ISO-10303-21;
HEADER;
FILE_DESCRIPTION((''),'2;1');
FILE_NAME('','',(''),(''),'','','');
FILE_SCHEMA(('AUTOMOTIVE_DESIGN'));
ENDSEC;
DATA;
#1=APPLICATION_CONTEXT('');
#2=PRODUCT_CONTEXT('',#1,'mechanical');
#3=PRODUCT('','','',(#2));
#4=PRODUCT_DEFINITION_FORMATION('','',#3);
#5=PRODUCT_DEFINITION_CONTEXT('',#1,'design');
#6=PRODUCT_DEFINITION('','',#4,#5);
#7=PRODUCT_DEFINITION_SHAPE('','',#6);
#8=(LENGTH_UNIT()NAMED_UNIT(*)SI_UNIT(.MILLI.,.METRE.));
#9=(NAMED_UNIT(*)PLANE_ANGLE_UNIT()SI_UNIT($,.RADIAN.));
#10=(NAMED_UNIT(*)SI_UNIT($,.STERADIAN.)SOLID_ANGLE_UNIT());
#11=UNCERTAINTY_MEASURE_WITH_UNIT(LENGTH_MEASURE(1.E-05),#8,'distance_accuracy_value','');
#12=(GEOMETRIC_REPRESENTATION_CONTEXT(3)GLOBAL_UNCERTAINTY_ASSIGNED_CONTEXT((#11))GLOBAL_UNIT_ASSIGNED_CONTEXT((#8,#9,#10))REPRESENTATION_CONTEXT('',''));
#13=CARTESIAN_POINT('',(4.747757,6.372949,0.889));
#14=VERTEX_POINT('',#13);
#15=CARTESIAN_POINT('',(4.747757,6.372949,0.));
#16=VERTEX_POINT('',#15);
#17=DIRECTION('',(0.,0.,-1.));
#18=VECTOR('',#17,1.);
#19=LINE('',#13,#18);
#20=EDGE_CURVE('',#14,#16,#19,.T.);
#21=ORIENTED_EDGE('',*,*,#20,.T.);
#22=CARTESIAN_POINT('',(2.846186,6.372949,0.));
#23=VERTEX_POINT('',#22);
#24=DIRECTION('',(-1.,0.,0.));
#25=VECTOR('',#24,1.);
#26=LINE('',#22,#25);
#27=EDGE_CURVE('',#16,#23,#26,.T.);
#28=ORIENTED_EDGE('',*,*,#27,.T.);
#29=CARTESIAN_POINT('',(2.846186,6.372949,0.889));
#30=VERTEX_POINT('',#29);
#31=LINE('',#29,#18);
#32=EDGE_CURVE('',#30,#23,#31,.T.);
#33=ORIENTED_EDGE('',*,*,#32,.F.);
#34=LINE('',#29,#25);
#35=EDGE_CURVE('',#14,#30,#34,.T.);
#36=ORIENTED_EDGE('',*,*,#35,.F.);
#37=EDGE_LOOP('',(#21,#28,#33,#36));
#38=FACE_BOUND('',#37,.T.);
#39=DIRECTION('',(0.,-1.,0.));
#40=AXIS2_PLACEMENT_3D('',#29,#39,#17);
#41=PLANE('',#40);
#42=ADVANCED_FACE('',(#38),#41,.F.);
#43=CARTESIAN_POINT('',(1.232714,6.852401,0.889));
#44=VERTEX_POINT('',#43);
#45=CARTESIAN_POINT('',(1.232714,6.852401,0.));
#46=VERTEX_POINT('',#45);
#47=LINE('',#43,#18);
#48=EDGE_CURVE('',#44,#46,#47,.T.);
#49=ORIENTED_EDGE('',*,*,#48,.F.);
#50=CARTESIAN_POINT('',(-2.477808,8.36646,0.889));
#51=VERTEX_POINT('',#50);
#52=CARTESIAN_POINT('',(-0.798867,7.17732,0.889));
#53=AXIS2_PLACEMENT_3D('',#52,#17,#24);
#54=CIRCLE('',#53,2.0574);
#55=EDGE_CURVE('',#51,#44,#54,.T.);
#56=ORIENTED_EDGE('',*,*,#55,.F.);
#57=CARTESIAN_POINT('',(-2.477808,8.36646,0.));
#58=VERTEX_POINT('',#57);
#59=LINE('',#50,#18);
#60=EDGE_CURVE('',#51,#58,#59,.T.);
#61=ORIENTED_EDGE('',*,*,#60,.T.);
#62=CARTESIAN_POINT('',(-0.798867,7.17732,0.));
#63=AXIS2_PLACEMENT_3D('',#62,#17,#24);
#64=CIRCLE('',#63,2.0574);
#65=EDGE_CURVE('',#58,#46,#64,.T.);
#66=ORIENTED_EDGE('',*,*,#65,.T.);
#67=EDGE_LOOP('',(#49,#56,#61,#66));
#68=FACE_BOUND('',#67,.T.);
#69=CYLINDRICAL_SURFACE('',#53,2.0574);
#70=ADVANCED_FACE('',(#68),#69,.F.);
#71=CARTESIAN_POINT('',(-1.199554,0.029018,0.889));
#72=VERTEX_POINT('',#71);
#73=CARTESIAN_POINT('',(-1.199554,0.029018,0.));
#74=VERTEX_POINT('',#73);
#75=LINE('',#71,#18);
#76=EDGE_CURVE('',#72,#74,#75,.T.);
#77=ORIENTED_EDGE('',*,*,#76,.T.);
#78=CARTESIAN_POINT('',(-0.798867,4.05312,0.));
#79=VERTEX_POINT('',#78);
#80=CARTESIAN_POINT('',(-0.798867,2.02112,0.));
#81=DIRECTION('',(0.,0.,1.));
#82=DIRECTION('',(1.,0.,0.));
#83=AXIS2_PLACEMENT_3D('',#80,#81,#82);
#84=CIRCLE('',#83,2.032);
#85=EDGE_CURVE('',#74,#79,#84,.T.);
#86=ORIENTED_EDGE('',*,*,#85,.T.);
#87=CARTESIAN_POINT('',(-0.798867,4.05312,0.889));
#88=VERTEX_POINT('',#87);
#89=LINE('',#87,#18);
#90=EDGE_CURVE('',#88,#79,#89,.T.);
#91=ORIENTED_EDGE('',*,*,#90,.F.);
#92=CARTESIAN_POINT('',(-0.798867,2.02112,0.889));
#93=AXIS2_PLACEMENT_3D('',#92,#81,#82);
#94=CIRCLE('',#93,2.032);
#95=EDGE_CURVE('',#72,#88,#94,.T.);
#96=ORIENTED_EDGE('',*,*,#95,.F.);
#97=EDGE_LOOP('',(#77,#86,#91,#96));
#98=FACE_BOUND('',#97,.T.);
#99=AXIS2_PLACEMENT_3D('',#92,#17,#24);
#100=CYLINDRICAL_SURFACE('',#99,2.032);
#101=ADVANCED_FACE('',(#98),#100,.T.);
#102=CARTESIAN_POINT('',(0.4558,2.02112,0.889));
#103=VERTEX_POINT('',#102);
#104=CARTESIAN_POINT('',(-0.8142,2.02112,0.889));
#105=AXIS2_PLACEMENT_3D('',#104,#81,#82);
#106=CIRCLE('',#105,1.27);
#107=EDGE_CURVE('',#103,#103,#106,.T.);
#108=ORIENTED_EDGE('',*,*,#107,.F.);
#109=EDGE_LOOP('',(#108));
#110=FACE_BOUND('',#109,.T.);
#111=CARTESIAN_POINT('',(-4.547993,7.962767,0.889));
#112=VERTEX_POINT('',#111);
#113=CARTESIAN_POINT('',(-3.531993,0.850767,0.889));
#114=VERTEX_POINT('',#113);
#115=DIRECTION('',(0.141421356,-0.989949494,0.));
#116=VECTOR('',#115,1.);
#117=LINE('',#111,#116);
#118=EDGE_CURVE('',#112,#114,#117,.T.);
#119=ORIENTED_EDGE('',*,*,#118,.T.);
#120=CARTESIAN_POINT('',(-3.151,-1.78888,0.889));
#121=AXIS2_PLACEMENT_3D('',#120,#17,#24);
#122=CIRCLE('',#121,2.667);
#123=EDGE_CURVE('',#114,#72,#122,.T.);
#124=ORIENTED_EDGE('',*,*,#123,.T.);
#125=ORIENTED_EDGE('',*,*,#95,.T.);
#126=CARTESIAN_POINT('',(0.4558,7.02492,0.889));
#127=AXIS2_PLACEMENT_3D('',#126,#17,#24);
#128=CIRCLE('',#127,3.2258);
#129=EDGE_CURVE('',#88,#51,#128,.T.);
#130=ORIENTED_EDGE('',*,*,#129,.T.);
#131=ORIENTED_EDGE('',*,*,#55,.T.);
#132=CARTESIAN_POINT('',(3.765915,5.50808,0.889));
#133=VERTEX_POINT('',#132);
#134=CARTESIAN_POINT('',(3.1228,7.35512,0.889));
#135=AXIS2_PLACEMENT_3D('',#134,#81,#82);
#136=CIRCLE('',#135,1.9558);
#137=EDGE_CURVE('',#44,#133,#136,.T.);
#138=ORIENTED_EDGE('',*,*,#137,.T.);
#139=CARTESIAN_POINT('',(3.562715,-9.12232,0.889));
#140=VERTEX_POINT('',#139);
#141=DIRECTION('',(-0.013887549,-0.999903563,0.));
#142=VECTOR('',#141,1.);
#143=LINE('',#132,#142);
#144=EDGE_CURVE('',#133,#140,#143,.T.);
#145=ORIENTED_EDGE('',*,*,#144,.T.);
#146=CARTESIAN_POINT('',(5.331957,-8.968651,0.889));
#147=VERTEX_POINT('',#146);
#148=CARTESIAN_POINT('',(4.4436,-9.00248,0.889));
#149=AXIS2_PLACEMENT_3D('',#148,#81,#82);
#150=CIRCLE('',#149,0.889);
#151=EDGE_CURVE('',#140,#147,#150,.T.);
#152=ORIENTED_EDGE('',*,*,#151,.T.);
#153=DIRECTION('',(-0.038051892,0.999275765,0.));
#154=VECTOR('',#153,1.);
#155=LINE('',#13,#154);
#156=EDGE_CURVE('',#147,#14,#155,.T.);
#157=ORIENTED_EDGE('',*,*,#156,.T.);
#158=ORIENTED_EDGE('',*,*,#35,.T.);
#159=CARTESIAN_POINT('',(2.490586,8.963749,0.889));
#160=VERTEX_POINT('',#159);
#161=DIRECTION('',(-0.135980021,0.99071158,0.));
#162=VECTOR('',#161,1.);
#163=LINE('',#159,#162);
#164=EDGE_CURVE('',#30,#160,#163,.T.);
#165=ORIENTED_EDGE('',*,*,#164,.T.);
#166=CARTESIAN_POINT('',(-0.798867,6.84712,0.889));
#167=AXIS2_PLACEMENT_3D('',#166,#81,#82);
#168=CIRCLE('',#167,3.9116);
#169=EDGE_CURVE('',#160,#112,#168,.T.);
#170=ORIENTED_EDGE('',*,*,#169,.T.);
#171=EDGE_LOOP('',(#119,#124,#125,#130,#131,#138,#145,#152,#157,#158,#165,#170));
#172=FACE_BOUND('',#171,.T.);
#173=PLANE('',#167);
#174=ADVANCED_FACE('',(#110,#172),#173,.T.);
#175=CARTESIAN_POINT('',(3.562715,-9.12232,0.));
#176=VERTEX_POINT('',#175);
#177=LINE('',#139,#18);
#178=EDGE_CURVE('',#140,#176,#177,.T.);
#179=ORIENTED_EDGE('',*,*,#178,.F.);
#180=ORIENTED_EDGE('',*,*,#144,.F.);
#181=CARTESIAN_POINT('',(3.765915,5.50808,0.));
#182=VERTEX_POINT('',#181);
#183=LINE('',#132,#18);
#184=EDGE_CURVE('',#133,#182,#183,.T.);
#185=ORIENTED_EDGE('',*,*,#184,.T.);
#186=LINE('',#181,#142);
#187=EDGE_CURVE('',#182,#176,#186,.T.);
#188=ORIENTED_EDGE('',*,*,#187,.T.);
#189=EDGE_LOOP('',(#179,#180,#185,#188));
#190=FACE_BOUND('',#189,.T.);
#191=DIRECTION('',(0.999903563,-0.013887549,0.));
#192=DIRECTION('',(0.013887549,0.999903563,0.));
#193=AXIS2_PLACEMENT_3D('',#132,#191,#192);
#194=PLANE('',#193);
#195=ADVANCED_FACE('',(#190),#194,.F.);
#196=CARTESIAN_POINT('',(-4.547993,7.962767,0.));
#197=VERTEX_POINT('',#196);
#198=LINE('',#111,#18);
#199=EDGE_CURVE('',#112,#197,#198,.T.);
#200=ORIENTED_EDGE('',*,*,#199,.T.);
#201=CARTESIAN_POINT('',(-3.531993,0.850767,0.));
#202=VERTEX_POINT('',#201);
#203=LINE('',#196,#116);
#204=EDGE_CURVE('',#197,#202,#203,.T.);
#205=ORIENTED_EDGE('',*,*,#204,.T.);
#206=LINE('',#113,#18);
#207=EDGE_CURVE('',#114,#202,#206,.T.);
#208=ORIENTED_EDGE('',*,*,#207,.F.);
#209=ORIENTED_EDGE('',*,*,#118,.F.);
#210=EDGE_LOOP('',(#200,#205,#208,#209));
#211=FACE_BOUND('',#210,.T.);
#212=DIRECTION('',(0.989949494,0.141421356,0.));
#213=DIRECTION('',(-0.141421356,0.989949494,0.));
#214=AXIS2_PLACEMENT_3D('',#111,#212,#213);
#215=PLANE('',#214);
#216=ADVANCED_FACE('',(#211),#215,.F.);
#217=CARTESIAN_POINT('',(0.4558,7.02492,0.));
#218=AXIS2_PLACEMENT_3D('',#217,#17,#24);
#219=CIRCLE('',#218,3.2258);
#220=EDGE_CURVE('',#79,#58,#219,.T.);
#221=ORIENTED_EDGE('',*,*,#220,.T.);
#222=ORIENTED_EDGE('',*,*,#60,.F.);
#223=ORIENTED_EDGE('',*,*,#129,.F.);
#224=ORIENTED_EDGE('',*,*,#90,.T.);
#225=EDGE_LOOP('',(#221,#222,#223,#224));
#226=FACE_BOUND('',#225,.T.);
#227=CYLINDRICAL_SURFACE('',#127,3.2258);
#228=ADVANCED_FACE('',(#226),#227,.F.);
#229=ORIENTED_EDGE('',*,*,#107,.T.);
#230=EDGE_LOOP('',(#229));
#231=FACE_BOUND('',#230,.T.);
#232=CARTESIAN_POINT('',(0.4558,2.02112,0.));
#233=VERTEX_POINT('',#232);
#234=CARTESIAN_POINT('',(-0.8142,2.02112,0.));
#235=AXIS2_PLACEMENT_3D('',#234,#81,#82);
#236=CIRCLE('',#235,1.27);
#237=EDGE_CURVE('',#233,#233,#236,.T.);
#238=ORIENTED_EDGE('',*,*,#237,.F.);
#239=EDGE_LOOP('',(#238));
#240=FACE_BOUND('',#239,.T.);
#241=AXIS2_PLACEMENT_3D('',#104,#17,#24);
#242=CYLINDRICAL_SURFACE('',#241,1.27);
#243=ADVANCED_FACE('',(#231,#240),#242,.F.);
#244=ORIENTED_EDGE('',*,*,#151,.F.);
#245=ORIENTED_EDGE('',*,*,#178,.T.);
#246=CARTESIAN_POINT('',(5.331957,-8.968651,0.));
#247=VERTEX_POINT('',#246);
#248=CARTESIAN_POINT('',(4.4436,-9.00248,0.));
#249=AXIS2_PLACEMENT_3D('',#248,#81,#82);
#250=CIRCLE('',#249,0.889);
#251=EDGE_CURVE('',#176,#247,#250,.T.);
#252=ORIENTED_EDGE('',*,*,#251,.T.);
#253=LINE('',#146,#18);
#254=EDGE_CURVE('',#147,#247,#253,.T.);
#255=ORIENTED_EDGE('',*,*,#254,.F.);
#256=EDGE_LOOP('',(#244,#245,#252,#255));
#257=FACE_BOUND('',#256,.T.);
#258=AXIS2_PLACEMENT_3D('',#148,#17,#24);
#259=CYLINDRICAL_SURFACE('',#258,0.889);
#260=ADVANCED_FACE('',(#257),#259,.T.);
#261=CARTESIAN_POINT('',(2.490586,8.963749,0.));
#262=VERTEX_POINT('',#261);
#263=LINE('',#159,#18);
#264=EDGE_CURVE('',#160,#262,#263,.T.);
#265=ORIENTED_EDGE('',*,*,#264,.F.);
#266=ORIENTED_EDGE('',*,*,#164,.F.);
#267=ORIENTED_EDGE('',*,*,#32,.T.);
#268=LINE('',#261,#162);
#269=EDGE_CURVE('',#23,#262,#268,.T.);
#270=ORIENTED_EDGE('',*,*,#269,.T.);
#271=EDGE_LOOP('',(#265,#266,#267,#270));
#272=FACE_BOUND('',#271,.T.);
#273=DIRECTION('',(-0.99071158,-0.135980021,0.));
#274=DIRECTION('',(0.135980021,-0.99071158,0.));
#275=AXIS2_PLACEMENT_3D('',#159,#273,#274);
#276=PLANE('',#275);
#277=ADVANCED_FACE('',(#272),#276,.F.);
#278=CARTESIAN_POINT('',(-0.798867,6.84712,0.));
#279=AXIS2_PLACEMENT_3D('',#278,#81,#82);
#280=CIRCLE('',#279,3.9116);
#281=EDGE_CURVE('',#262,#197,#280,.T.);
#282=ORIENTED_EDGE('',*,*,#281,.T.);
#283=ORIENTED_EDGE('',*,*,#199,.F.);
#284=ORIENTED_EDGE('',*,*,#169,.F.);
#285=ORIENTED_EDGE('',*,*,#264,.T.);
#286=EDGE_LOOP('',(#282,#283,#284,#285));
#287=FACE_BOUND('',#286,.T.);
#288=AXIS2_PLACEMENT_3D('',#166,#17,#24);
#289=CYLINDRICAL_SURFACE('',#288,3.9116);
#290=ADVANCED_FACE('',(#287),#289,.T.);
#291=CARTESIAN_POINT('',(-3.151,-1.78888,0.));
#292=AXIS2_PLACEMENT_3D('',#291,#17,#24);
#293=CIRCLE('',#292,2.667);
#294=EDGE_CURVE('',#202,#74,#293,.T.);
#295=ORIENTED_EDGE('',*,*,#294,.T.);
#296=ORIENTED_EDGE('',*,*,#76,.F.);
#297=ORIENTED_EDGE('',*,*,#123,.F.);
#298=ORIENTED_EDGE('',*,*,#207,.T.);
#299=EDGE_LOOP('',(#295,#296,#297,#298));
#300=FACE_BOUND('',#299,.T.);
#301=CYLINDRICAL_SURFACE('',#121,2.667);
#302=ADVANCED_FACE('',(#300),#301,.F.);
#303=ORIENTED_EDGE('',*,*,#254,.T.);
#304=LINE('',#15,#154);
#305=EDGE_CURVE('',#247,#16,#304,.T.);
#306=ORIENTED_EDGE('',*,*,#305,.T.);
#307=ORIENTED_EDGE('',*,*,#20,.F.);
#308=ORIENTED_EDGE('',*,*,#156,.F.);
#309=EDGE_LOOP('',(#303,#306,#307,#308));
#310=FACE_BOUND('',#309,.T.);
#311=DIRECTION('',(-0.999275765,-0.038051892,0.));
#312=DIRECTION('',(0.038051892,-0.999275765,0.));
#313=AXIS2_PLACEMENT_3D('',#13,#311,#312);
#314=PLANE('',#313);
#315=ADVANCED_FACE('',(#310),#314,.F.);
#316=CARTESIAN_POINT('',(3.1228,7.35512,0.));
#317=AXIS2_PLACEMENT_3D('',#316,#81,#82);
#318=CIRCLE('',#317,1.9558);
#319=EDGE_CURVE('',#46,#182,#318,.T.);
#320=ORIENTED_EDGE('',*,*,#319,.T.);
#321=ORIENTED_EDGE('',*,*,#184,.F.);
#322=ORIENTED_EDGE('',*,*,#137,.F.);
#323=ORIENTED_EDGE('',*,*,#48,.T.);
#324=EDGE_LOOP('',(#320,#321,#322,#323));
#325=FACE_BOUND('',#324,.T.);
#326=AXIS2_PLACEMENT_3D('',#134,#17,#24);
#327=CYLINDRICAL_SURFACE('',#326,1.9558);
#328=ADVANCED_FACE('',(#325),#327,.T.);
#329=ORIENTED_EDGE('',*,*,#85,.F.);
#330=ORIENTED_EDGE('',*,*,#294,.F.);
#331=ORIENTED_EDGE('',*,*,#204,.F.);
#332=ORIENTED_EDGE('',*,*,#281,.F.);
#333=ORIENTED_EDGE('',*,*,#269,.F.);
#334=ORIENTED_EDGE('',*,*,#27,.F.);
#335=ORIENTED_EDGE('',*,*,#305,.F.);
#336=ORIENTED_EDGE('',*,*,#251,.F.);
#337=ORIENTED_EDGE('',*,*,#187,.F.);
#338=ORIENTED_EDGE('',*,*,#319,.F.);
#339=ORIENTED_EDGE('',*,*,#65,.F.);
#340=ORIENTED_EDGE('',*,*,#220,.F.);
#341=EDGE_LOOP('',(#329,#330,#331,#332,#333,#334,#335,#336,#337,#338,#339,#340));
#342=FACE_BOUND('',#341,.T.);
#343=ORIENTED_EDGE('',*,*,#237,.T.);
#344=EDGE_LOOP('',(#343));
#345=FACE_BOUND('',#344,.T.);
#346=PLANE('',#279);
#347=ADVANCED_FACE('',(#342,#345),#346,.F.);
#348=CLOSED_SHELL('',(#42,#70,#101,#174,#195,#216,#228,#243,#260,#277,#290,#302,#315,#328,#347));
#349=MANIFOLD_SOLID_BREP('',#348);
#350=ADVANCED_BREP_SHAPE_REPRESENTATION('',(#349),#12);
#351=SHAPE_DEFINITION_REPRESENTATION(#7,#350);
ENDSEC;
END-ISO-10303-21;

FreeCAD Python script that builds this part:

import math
import FreeCAD as App
import Part
import Sketcher

V = App.Vector
Q = App.Units.Quantity

doc = App.newDocument("Part")
body = doc.addObject("PartDesign::Body", "Body")

# Sketch on XY plane
sketch1 = body.newObject("Sketcher::SketchObject", "Sketch")
sketch1.AttachmentSupport = (doc.getObject("XY_Plane"), [""])
sketch1.MapMode = "FlatFace"
sketch1.addGeometry([
    Part.LineSegment(V(-4.5, 8, 0), V(-3.5, 0.9, 0)),  # 0
    Part.ArcOfCircle(Part.Circle(V(-3.2, -1.8, 0), V(0, 0, 1), 2.7), math.radians(43), math.radians(98)),  # 1
    Part.ArcOfCircle(Part.Circle(V(-0.8, 2, 0), V(0, 0, 1), 2), math.radians(-101), math.radians(90)),  # 2
    Part.ArcOfCircle(Part.Circle(V(0.5, 7, 0), V(0, 0, 1), 3.2), math.radians(155), math.radians(247)),  # 3
    Part.ArcOfCircle(Part.Circle(V(-0.8, 7.2, 0), V(0, 0, 1), 2.1), math.radians(-9), math.radians(145)),  # 4
    Part.ArcOfCircle(Part.Circle(V(3.1, 7.4, 0), V(0, 0, 1), 2), math.radians(-165), math.radians(-71)),  # 5
    Part.LineSegment(V(3.8, 5.5, 0), V(3.6, -9.1, 0)),  # 6
    Part.ArcOfCircle(Part.Circle(V(4.4, -9, 0), V(0, 0, 1), 0.9), math.radians(-172), math.radians(2)),  # 7
    Part.LineSegment(V(5.3, -9, 0), V(4.7, 6.4, 0)),  # 8
    Part.LineSegment(V(4.7, 6.4, 0), V(2.8, 6.4, 0)),  # 9
    Part.LineSegment(V(2.8, 6.4, 0), V(2.5, 9, 0)),  # 10
    Part.ArcOfCircle(Part.Circle(V(-0.8, 6.8, 0), V(0, 0, 1), 3.9), math.radians(33), math.radians(163)),  # 11
    Part.Circle(V(-0.8, 2, 0), V(0, 0, 1), 1.3),  # 12
], False)
sketch1.addConstraint([
    Sketcher.Constraint("Coincident", 0, 2, 1, 2),
    Sketcher.Constraint("Coincident", 1, 1, 2, 1),
    Sketcher.Constraint("Coincident", 2, 2, 3, 2),
    Sketcher.Constraint("Coincident", 3, 1, 4, 2),
    Sketcher.Constraint("Coincident", 4, 1, 5, 1),
    Sketcher.Constraint("Coincident", 5, 2, 6, 1),
    Sketcher.Constraint("Coincident", 6, 2, 7, 1),
    Sketcher.Constraint("Tangent", 7, 2, 8, 1),
    Sketcher.Constraint("Coincident", 8, 2, 9, 1),
    Sketcher.Constraint("Coincident", 9, 2, 10, 1),
    Sketcher.Constraint("Coincident", 10, 2, 11, 1),
    Sketcher.Constraint("Coincident", 11, 2, 0, 1),
    Sketcher.Constraint("Horizontal", 9),
    Sketcher.Constraint("Horizontal", 2, 3, 12, 3),
    Sketcher.Constraint("Vertical", 2, 3, 4, 3),
    Sketcher.Constraint("Vertical", 4, 3, 11, 3),
    Sketcher.Constraint("Vertical", 11, 3, 2, 2),
    Sketcher.Constraint("Diameter", 12, Q("0.1 in")),
    Sketcher.Constraint("Radius", 2, Q("0.08 in")),
    Sketcher.Constraint("Radius", 1, Q("0.105 in")),
    Sketcher.Constraint("Radius", 3, Q("0.127 in")),
    Sketcher.Constraint("Radius", 4, Q("0.081 in")),
    Sketcher.Constraint("Radius", 5, Q("0.077 in")),
    Sketcher.Constraint("Radius", 7, Q("0.035 in")),
    Sketcher.Constraint("Radius", 11, Q("0.154 in")),
    Sketcher.Constraint("DistanceY", 1, 3, 2, 3, Q("0.15 in")),
    Sketcher.Constraint("DistanceY", 2, 3, 5, 3, Q("0.21 in")),
    Sketcher.Constraint("DistanceY", 11, 3, 5, 3, Q("0.02 in")),
    Sketcher.Constraint("DistanceX", 12, 3, 3, 3, Q("0.05 in")),
    Sketcher.Constraint("DistanceY", 2, 3, 3, 3, Q("0.197 in")),
    Sketcher.Constraint("DistanceX", 1, 3, 3, 3, Q("0.142 in")),
    Sketcher.Constraint("DistanceY", 3, 3, 4, 3, Q("0.006 in")),
    Sketcher.Constraint("DistanceX", 3, 3, 5, 3, Q("0.105 in")),
    Sketcher.Constraint("DistanceX", 1, 3, 7, 3, Q("0.299 in")),
    Sketcher.Constraint("DistanceY", 7, 3, 1, 3, Q("0.284 in")),
    Sketcher.Constraint("DistanceX", 10, 2, 9, 2, Q("0.014 in")),
    Sketcher.Constraint("DistanceY", 9, 2, 10, 2, Q("0.102 in")),
    Sketcher.Constraint("DistanceX", 9, 2, 9, 1, Q("1.901571 mm")),
    Sketcher.Constraint("DistanceX", 1, 3, -1, 1, Q("3.151 mm")),
    Sketcher.Constraint("DistanceY", -1, 1, 4, 1, Q("6.852401 mm")),
    Sketcher.Constraint("DistanceX", 4, 1, 5, 2, Q("2.533201 mm")),
    Sketcher.Constraint("Distance", 6, Q("14.631811 mm")),
    Sketcher.Constraint("Distance", 8, Q("15.352719 mm")),
    Sketcher.Constraint("DistanceX", 0, 2, 1, 1, Q("2.332439 mm")),
    Sketcher.Constraint("Distance", 0, Q("7.184205 mm")),
])
pad1 = body.newObject("PartDesign::Pad", "Pad")
pad1.Profile = sketch1
pad1.Length = Q("0.035 in")

doc.recompute()
